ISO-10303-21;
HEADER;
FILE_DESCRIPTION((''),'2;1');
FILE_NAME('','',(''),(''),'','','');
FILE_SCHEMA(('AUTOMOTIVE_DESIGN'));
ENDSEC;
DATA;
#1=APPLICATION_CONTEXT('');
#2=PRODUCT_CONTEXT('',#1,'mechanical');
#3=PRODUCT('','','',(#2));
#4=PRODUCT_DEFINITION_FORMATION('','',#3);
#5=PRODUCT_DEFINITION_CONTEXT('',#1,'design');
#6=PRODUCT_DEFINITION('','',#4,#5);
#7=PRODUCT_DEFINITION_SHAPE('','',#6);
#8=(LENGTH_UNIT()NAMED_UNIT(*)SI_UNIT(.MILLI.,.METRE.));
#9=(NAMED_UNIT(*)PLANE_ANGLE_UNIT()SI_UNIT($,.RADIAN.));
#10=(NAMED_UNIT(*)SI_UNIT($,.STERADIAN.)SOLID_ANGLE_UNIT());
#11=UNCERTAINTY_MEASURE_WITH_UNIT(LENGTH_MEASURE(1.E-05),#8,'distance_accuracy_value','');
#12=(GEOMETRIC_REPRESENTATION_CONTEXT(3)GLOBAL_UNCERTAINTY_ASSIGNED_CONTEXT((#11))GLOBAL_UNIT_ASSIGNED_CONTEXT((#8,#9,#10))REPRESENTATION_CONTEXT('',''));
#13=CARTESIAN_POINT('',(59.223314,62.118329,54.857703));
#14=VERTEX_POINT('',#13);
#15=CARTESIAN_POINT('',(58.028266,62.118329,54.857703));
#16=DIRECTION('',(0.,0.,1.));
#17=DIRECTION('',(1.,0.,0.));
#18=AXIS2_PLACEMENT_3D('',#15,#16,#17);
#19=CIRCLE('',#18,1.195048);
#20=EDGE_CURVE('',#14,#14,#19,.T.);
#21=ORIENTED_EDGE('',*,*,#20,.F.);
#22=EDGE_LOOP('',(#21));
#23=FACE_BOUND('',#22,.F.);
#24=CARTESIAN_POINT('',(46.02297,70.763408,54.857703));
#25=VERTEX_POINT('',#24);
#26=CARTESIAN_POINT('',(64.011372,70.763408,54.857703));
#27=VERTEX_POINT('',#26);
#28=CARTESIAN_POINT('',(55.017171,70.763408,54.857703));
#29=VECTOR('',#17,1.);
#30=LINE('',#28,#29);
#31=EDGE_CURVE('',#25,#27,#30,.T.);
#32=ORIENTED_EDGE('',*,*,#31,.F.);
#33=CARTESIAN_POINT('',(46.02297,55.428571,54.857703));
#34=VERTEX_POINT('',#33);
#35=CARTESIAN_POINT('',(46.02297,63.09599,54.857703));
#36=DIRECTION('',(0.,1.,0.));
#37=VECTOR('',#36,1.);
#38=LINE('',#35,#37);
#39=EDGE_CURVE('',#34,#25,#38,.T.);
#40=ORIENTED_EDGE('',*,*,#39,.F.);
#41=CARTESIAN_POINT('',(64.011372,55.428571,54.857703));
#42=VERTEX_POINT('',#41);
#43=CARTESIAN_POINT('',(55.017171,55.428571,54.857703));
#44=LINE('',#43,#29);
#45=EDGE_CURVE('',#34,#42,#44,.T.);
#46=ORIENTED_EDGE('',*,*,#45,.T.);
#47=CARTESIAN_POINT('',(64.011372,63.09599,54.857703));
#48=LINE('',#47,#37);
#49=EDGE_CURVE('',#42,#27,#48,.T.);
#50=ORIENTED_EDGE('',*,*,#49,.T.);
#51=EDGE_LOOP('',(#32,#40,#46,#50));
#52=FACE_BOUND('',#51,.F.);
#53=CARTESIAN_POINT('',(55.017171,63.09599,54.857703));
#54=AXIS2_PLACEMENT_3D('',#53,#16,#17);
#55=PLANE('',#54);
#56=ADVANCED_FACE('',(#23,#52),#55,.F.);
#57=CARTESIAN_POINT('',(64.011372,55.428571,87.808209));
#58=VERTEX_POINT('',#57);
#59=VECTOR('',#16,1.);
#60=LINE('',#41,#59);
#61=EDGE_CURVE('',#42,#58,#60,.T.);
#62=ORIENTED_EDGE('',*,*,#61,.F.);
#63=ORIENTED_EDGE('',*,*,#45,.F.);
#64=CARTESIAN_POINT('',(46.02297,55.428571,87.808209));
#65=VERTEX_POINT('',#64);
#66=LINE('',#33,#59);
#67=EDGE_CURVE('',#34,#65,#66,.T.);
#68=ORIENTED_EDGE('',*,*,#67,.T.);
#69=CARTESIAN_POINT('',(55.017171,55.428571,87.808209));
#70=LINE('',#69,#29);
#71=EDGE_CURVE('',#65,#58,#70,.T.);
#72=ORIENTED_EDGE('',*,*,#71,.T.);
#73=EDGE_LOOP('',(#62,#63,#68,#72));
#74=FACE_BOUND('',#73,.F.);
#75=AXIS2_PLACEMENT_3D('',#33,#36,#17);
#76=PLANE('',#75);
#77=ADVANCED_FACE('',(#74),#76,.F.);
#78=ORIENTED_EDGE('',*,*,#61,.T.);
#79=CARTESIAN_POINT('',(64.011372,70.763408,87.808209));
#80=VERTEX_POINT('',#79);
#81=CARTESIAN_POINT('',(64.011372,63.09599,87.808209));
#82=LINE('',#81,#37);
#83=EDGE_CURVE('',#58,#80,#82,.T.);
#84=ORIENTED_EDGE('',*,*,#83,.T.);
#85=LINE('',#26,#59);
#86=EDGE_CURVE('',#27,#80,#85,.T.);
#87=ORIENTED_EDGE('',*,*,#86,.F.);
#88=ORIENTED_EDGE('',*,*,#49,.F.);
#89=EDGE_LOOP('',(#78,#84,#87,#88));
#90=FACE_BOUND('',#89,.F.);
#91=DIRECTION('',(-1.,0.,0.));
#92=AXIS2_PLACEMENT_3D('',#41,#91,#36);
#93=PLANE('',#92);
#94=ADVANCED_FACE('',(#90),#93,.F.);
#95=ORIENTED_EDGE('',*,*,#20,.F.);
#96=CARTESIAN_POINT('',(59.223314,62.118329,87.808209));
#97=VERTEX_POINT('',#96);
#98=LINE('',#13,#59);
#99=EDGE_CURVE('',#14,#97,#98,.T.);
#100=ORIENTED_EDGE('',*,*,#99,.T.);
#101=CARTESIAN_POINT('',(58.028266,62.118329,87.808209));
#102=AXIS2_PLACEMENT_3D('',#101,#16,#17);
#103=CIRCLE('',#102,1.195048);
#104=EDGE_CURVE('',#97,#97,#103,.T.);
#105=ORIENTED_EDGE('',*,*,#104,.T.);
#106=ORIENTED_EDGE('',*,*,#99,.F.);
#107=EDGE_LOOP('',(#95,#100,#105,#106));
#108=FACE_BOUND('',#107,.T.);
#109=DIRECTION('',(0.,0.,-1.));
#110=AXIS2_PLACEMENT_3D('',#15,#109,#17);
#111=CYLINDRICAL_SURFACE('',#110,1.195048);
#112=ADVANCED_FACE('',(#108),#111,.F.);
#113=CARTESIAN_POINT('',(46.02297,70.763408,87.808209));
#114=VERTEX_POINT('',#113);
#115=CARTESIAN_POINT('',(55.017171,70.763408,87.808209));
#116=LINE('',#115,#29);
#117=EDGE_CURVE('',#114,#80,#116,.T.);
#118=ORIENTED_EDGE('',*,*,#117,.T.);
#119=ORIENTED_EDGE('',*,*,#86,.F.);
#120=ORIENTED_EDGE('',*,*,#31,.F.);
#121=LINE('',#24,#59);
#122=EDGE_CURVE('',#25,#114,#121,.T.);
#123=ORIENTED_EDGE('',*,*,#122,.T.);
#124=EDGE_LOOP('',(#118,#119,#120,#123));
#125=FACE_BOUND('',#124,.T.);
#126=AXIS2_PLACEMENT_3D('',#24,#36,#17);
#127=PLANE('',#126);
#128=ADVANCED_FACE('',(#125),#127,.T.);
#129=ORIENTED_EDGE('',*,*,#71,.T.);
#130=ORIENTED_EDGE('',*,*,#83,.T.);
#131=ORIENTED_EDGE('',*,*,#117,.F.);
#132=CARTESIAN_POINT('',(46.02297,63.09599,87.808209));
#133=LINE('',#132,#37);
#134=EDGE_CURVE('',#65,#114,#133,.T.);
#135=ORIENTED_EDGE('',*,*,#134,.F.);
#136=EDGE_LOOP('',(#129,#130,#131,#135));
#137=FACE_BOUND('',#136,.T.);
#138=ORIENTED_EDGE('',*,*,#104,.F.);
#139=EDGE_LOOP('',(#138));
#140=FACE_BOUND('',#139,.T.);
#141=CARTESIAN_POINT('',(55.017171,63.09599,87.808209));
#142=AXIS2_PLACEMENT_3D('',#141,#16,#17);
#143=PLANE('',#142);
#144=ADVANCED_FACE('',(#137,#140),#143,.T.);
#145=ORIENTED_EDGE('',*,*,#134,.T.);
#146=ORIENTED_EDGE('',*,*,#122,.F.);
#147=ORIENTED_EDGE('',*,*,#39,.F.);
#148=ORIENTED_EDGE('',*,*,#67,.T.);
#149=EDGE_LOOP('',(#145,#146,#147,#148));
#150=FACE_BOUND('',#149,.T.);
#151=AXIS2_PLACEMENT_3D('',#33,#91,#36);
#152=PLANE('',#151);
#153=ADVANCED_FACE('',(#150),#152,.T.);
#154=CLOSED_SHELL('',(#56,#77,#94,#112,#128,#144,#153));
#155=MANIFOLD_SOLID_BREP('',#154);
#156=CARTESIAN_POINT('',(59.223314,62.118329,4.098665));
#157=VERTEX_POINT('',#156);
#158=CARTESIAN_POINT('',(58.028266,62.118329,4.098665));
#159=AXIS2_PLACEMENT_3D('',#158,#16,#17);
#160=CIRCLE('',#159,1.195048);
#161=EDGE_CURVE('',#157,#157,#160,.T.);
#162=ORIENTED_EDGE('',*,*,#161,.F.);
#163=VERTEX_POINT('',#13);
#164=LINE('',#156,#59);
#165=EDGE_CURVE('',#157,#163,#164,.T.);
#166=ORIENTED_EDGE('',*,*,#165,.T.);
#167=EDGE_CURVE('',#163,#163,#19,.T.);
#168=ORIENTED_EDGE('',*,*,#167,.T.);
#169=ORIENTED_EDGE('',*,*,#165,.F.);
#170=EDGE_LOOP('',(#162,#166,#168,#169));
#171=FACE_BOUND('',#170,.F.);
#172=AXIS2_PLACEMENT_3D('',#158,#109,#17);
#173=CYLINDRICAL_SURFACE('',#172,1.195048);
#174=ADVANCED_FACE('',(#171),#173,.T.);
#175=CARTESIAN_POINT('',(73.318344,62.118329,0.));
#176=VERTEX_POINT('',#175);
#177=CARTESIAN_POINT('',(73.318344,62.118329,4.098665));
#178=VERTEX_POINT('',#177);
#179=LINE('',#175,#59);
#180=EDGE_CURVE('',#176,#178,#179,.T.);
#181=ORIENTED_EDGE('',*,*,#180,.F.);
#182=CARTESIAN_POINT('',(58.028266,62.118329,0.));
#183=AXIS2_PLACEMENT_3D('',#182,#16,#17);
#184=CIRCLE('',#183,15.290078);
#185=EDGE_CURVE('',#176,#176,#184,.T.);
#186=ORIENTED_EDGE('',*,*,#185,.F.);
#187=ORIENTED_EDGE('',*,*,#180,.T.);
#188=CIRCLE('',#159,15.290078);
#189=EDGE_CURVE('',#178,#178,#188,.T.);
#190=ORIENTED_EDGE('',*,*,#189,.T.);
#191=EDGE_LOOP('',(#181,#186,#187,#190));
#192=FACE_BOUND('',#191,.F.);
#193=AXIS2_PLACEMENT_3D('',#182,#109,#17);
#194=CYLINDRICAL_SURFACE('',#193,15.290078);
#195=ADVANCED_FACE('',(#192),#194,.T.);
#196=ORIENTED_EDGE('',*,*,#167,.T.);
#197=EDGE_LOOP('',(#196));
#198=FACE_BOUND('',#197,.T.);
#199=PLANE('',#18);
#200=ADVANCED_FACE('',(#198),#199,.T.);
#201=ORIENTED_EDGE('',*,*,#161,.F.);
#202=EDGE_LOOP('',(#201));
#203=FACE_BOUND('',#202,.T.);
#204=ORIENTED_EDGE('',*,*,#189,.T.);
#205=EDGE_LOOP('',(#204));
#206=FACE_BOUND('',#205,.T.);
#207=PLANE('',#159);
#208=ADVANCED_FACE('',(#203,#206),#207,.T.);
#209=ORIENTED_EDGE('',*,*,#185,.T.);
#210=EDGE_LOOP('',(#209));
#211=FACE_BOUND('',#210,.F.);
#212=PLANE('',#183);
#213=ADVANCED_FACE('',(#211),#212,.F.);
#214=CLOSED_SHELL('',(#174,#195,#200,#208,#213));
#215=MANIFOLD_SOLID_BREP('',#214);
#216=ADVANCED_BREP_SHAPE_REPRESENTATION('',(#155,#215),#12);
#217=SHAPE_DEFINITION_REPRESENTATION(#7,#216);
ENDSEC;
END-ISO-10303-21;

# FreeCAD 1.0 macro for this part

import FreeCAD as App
import Part
import Sketcher

V = App.Vector

doc = App.newDocument("Part")
params = doc.addObject("Spreadsheet::Sheet", "Params")
for row, (alias, value) in enumerate([
    ("pad1_length", "4.098665 mm"),
    ("pad2_length", "50.759038 mm"),
    ("pad3_length", "32.950506 mm"),
], start=1):
    params.set(f"A{row}", alias)
    params.set(f"B{row}", "=" + value)
    params.setAlias(f"B{row}", alias)

body = doc.addObject("PartDesign::Body", "Body")

# Sketch on XY plane
sketch1 = doc.addObject("Sketcher::SketchObject", "Sketch")
body.addObject(sketch1)
sketch1.AttachmentSupport = (doc.XY_Plane, [""])
sketch1.MapMode = "FlatFace"
sketch1.addGeometry(Part.Circle(V(58, 62, 0), V(0, 0, 1), 15), False)
sketch1.addConstraint(Sketcher.Constraint("Diameter", 0, 30.580156))
sketch1.addConstraint(Sketcher.Constraint("DistanceY", -1, 1, 0, 3, 62.118329))
sketch1.addConstraint(Sketcher.Constraint("DistanceX", -1, 1, 0, 3, 58.028266))
pad1 = doc.addObject("PartDesign::Pad", "Pad")
body.addObject(pad1)
pad1.Profile = sketch1
pad1.setExpression("Length", "Params.pad1_length")

# Sketch on XY plane
sketch2 = doc.addObject("Sketcher::SketchObject", "Sketch001")
body.addObject(sketch2)
sketch2.AttachmentSupport = (doc.XY_Plane, [""])
sketch2.MapMode = "FlatFace"
sketch2.AttachmentOffset = App.Placement(V(0, 0, 4.098665), App.Rotation())
sketch2.addGeometry(Part.Circle(V(58, 62.1, 0), V(0, 0, 1), 1.2), False)
sketch2.addConstraint(Sketcher.Constraint("Diameter", 0, 2.390096))
sketch2.addConstraint(Sketcher.Constraint("DistanceY", -1, 1, 0, 3, 62.118329))
sketch2.addConstraint(Sketcher.Constraint("DistanceX", -1, 1, 0, 3, 58.028266))
pad2 = doc.addObject("PartDesign::Pad", "Pad001")
body.addObject(pad2)
pad2.Profile = sketch2
pad2.setExpression("Length", "Params.pad2_length")
body2 = doc.addObject("PartDesign::Body", "Body001")

# Sketch on XY plane
sketch3 = doc.addObject("Sketcher::SketchObject", "Sketch002")
body2.addObject(sketch3)
sketch3.AttachmentSupport = (doc.getObject("XY_Plane001"), [""])
sketch3.MapMode = "FlatFace"
sketch3.AttachmentOffset = App.Placement(V(0, 0, 54.857703), App.Rotation())
sketch3.addGeometry(Part.LineSegment(V(46, 70.8, 0), V(46, 55.4, 0)), False)
sketch3.addGeometry(Part.LineSegment(V(46, 55.4, 0), V(64, 55.4, 0)), False)
sketch3.addGeometry(Part.LineSegment(V(64, 55.4, 0), V(64, 70.8, 0)), False)
sketch3.addGeometry(Part.LineSegment(V(64, 70.8, 0), V(46, 70.8, 0)), False)
sketch3.addGeometry(Part.Circle(V(58, 62.1, 0), V(0, 0, 1), 1.2), False)
sketch3.addConstraint(Sketcher.Constraint("Coincident", 0, 2, 1, 1))
sketch3.addConstraint(Sketcher.Constraint("Coincident", 1, 2, 2, 1))
sketch3.addConstraint(Sketcher.Constraint("Coincident", 2, 2, 3, 1))
sketch3.addConstraint(Sketcher.Constraint("Coincident", 3, 2, 0, 1))
sketch3.addConstraint(Sketcher.Constraint("Vertical", 0))
sketch3.addConstraint(Sketcher.Constraint("Horizontal", 1))
sketch3.addConstraint(Sketcher.Constraint("Vertical", 2))
sketch3.addConstraint(Sketcher.Constraint("Horizontal", 3))
sketch3.addConstraint(Sketcher.Constraint("Diameter", 4, 2.390096))
sketch3.addConstraint(Sketcher.Constraint("DistanceX", 1, 1, 1, 2, 17.988403))
sketch3.addConstraint(Sketcher.Constraint("DistanceY", 0, 2, 0, 1, 15.334837))
sketch3.addConstraint(Sketcher.Constraint("DistanceY", -1, 1, 4, 3, 62.118329))
sketch3.addConstraint(Sketcher.Constraint("DistanceX", -1, 1, 0, 2, 46.02297))
sketch3.addConstraint(Sketcher.Constraint("DistanceY", -1, 1, 0, 2, 55.428571))
sketch3.addConstraint(Sketcher.Constraint("DistanceX", -1, 1, 4, 3, 58.028266))
pad3 = doc.addObject("PartDesign::Pad", "Pad002")
body2.addObject(pad3)
pad3.Profile = sketch3
pad3.setExpression("Length", "Params.pad3_length")

doc.recompute()
